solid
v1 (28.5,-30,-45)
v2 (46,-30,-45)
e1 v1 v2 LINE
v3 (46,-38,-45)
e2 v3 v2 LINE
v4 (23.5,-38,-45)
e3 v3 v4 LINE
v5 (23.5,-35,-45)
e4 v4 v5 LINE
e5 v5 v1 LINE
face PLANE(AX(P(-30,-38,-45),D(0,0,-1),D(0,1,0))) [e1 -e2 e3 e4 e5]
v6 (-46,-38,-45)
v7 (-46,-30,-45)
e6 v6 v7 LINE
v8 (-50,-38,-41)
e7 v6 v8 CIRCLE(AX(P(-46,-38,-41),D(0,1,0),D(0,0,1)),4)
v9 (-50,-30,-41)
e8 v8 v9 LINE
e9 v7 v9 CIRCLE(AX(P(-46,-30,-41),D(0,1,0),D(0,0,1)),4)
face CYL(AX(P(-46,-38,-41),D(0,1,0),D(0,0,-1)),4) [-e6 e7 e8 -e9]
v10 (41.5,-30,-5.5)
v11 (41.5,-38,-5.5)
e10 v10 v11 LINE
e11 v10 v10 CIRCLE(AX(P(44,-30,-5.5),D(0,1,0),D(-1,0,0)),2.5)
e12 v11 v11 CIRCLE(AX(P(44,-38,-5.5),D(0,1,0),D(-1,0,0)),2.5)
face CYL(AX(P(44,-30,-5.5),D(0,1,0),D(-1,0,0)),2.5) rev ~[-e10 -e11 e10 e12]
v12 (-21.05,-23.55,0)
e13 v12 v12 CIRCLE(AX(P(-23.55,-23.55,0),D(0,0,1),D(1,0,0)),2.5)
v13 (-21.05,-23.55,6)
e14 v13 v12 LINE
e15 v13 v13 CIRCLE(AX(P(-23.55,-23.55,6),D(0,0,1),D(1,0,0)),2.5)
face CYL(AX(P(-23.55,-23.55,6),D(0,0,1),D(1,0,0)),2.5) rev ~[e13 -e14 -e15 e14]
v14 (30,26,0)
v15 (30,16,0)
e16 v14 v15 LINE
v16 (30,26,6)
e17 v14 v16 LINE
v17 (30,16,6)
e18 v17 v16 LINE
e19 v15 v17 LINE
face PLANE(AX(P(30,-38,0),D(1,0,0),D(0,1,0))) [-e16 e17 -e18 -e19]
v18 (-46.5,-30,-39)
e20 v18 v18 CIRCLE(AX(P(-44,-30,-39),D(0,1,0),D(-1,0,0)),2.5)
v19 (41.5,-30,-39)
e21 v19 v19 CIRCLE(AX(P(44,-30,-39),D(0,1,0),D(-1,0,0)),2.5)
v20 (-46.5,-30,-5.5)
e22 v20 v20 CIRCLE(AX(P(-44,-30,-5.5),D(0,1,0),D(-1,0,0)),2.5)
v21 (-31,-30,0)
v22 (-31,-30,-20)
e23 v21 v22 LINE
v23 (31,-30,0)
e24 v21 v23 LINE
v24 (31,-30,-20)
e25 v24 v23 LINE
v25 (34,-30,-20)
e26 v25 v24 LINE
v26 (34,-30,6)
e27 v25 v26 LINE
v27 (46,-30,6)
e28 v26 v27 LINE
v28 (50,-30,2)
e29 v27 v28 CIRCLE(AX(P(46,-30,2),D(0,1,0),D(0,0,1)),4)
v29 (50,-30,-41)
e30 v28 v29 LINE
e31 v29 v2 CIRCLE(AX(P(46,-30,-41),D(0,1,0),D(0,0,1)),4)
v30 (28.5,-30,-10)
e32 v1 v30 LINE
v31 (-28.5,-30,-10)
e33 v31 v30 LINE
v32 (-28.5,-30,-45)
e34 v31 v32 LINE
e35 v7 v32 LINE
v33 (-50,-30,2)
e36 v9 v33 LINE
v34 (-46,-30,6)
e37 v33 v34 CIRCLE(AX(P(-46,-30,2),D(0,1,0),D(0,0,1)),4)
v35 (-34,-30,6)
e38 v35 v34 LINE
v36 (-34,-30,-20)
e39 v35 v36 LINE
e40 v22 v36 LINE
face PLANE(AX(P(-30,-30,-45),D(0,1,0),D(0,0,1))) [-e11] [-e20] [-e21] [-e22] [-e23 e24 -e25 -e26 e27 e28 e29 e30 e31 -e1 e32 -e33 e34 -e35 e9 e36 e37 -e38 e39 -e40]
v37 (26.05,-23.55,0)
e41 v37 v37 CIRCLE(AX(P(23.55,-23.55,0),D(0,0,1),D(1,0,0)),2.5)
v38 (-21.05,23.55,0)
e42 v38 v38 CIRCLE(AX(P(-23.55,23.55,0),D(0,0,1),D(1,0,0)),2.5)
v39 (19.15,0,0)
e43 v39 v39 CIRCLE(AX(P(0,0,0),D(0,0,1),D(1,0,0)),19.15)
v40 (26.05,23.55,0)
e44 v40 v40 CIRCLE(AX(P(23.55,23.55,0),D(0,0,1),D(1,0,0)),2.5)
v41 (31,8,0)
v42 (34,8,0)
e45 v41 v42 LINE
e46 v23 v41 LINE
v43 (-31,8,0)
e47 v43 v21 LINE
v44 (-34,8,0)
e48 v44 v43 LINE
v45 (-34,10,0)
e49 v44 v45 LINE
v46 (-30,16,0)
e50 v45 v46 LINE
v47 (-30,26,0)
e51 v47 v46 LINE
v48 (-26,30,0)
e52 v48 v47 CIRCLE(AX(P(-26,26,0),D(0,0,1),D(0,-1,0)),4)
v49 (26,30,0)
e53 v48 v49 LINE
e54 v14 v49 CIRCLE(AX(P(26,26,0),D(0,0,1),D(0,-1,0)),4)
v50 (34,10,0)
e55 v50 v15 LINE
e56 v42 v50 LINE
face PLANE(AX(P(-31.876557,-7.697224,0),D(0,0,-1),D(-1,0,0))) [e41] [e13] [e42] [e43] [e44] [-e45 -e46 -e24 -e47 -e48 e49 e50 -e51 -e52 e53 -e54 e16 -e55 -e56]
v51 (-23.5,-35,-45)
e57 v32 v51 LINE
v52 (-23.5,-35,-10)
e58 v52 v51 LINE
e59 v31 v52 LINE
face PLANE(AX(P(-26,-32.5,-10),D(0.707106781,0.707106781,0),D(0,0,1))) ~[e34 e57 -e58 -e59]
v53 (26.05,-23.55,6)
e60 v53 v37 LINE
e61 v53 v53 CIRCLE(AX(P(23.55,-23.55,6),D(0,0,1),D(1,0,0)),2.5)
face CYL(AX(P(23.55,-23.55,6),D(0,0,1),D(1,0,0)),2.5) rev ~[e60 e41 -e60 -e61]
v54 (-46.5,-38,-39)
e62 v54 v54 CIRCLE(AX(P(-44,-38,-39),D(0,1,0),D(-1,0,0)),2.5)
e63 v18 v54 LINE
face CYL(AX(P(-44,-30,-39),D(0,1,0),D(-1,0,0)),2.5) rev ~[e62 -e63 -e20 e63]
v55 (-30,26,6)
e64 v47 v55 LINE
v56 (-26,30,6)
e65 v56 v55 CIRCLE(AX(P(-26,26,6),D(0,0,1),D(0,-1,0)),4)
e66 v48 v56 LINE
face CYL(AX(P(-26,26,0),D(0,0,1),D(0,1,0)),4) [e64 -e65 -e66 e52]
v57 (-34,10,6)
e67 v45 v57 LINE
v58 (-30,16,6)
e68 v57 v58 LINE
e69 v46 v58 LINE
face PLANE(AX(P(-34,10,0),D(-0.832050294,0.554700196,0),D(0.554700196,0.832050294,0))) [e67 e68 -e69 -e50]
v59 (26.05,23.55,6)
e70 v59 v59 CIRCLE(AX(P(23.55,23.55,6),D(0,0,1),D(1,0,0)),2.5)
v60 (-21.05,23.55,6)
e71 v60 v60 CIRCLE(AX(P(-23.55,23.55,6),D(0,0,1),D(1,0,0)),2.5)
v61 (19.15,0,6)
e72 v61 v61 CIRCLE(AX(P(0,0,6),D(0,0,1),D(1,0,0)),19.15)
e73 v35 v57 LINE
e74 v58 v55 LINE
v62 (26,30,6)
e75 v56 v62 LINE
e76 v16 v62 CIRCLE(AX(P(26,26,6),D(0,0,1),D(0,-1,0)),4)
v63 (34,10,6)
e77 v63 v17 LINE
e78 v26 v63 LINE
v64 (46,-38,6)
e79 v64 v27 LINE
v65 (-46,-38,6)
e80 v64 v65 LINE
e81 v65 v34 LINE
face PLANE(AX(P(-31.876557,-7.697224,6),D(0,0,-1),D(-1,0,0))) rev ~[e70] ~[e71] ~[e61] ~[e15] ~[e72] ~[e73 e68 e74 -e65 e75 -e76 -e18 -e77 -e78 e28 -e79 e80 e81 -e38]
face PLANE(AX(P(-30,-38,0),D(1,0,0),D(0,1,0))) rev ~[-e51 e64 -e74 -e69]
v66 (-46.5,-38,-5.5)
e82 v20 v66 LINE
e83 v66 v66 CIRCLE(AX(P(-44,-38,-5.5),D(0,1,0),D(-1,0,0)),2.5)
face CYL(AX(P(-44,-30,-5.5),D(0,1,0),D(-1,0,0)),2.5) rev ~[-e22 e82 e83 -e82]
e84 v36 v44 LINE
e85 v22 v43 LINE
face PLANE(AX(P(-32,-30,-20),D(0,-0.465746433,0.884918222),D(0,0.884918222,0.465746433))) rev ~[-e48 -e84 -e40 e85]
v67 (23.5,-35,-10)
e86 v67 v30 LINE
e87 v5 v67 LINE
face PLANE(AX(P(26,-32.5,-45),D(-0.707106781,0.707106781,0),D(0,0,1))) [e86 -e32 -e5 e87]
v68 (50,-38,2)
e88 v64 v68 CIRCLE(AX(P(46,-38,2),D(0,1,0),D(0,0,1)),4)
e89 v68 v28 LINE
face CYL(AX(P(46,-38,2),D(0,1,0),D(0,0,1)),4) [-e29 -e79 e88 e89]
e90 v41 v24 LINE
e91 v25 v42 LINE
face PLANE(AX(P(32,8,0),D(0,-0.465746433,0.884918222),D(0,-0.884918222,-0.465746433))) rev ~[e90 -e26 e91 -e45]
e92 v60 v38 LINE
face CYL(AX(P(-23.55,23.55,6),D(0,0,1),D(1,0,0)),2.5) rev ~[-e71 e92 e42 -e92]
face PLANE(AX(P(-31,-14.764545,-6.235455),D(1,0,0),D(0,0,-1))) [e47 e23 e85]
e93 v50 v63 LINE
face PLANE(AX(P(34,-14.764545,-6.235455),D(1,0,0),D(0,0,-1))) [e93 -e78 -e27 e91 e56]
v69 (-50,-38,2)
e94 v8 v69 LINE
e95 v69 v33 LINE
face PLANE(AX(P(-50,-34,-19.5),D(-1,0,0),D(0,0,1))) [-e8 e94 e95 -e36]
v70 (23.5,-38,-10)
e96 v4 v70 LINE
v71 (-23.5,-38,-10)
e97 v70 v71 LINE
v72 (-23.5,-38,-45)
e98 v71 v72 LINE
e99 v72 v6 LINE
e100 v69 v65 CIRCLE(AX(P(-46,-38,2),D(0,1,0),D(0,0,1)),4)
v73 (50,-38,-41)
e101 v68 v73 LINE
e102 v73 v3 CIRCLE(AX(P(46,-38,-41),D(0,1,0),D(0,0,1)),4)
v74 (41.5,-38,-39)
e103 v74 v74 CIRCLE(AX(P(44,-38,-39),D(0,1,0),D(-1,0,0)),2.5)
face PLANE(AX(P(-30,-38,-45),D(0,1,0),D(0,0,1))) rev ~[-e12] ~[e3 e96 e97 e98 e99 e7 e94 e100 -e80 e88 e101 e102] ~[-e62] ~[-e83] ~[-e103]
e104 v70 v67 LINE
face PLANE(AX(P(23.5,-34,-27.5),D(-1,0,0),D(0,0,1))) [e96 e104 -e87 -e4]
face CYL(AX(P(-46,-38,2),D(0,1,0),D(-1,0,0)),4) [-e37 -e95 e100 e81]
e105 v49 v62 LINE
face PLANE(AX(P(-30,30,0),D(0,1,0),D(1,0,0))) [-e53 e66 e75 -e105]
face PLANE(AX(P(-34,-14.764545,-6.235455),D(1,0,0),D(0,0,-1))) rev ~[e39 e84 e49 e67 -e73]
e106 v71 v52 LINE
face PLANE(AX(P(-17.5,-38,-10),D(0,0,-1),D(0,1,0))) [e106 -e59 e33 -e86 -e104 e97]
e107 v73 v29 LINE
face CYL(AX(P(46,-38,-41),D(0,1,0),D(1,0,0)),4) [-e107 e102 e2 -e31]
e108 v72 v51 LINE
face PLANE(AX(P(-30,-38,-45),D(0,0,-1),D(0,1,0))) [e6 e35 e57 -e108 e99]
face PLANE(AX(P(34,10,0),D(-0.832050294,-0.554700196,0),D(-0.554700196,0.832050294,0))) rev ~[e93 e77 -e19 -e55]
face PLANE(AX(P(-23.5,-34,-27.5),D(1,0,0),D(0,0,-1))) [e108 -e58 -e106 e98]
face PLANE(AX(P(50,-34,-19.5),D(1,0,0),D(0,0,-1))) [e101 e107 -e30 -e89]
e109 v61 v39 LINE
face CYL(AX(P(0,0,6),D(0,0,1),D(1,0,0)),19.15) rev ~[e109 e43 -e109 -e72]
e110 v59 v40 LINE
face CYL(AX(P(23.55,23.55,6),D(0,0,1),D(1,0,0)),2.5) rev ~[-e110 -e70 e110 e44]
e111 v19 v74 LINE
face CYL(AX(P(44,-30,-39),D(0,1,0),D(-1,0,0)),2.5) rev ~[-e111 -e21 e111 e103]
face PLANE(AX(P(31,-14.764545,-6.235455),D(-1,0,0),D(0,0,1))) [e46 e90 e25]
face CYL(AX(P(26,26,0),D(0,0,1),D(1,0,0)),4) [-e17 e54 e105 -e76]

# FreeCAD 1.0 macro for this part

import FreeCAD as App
import Part
import Sketcher
from FreeCAD import Vector
Q = App.Units.Quantity


def edges_at(feature, points):
    """Names of the edges that pass closest to the given points."""
    edges = feature.Shape.Edges
    near = lambda p: min(range(len(edges)), key=lambda i: edges[i].distToShape(Part.Vertex(*p))[0])
    return sorted({f"Edge{near(p) + 1}" for p in points})

doc = App.newDocument("Part")
params = doc.addObject("Spreadsheet::Sheet", "Params")
for row, (alias, value) in enumerate([
    ("sketch1_width", "60 mm"),
    ("pad1_length", "6 mm"),
    ("sketch2_diameter", "38.3 mm"),
    ("pocket1_length", "6 mm"),
    ("sketch3_diameter", "5 mm"),
    ("pocket2_length", "6 mm"),
    ("sketch4_width", "60 mm"),
    ("sketch4_height", "6 mm"),
    ("pad2_length", "8 mm"),
    ("sketch5_width", "60 mm"),
    ("sketch5_height", "8 mm"),
    ("pad3_length", "45 mm"),
    ("sketch6_width", "8 mm"),
    ("sketch6_height", "51 mm"),
    ("pad4_length", "20 mm"),
    ("sketch7_width", "8 mm"),
    ("sketch7_height", "51 mm"),
    ("pad5_length", "20 mm"),
    ("sketch8_width", "4 mm"),
    ("sketch8_height", "46 mm"),
    ("sketch8_height2", "40 mm"),
    ("pad6_length", "6 mm"),
    ("sketch9_width", "4 mm"),
    ("sketch9_height", "40 mm"),
    ("sketch9_height2", "46 mm"),
    ("pad7_length", "6 mm"),
    ("sketch10_width", "38 mm"),
    ("sketch10_height", "20 mm"),
    ("pad8_length", "2 mm"),
    ("sketch11_width", "38 mm"),
    ("sketch11_height", "20 mm"),
    ("pad9_length", "2 mm"),
    ("sketch12_width", "38 mm"),
    ("sketch12_height", "20 mm"),
    ("pad10_length", "1 mm"),
    ("sketch13_width", "38 mm"),
    ("sketch13_height", "20 mm"),
    ("pad11_length", "1 mm"),
    ("sketch14_width", "35 mm"),
    ("pocket3_length", "10 mm"),
    ("sketch15_diameter", "5 mm"),
    ("pocket4_length", "10 mm"),
    ("sketch16_width", "8 mm"),
    ("sketch16_height", "35 mm"),
    ("pocket5_length", "6 mm"),
    ("sketch17_width", "8 mm"),
    ("sketch17_height", "35 mm"),
    ("pocket6_length", "6 mm"),
    ("chamfer_size", "5 mm"),
    ("chamfer2_size", "5 mm"),
    ("fillet_radius", "4 mm"),
    ("fillet2_radius", "4 mm"),
    ("fillet3_radius", "4 mm"),
    ("fillet4_radius", "4 mm"),
    ("fillet5_radius", "4 mm"),
    ("fillet6_radius", "4 mm"),
], start=1):
    params.set(f"A{row}", alias)
    params.set(f"B{row}", "=" + value)
    params.setAlias(f"B{row}", alias)

body = doc.addObject("PartDesign::Body", "Body")

# Sketch on XY plane
sketch1 = doc.addObject("Sketcher::SketchObject", "Sketch")
body.addObject(sketch1)
sketch1.AttachmentSupport = (doc.XY_Plane, [""])
sketch1.MapMode = "FlatFace"
sketch1.addGeometry([
    Part.LineSegment(Vector(-30, 30, 0), Vector(-30, -30, 0)),
    Part.LineSegment(Vector(-30, -30, 0), Vector(30, -30, 0)),
    Part.LineSegment(Vector(30, -30, 0), Vector(30, 30, 0)),
    Part.LineSegment(Vector(30, 30, 0), Vector(-30, 30, 0)),
], False)
sketch1.addConstraint([
    Sketcher.Constraint("Coincident", 0, 2, 1, 1),
    Sketcher.Constraint("Coincident", 1, 2, 2, 1),
    Sketcher.Constraint("Coincident", 2, 2, 3, 1),
    Sketcher.Constraint("Coincident", 3, 2, 0, 1),
    Sketcher.Constraint("Vertical", 0),
    Sketcher.Constraint("Horizontal", 1),
    Sketcher.Constraint("Vertical", 2),
    Sketcher.Constraint("Horizontal", 3),
    Sketcher.Constraint("Symmetric", 0, 2, 2, 2, -1, 1),
    Sketcher.Constraint("Equal", 3, 0),
    Sketcher.Constraint("DistanceX", 1, 1, 1, 2, Q("60 mm")),
])
sketch1.setExpression("Constraints[10]", "Params.sketch1_width")
pad1 = doc.addObject("PartDesign::Pad", "Pad")
body.addObject(pad1)
pad1.Profile = sketch1
pad1.setExpression("Length", "Params.pad1_length")

# Sketch on XY plane
sketch2 = doc.addObject("Sketcher::SketchObject", "Sketch001")
body.addObject(sketch2)
sketch2.AttachmentSupport = (doc.XY_Plane, [""])
sketch2.MapMode = "FlatFace"
sketch2.AttachmentOffset = App.Placement(Vector(0, 0, 6), App.Rotation())
sketch2.addGeometry(Part.Circle(Vector(0, 0, 0), Vector(0, 0, 1), 19), False)
sketch2.addConstraint([
    Sketcher.Constraint("Coincident", 0, 3, -1, 1),
    Sketcher.Constraint("Diameter", 0, Q("38.3 mm")),
])
sketch2.setExpression("Constraints[1]", "Params.sketch2_diameter")
pocket1 = doc.addObject("PartDesign::Pocket", "Pocket")
body.addObject(pocket1)
pocket1.Profile = sketch2
pocket1.setExpression("Length", "Params.pocket1_length")

# Sketch on XY plane
sketch3 = doc.addObject("Sketcher::SketchObject", "Sketch002")
body.addObject(sketch3)
sketch3.AttachmentSupport = (doc.XY_Plane, [""])
sketch3.MapMode = "FlatFace"
sketch3.AttachmentOffset = App.Placement(Vector(0, 0, 6), App.Rotation())
sketch3.addGeometry([
    Part.Circle(Vector(-23.6, 23.6, 0), Vector(0, 0, 1), 2.5),
    Part.Circle(Vector(-23.6, -23.6, 0), Vector(0, 0, 1), 2.5),
    Part.Circle(Vector(23.6, 23.6, 0), Vector(0, 0, 1), 2.5),
    Part.Circle(Vector(23.6, -23.6, 0), Vector(0, 0, 1), 2.5),
], False)
sketch3.addConstraint([
    Sketcher.Constraint("Equal", 0, 1),
    Sketcher.Constraint("Equal", 1, 2),
    Sketcher.Constraint("Equal", 2, 3),
    Sketcher.Constraint("Symmetric", 1, 3, 2, 3, -1, 1),
    Sketcher.Constraint("Symmetric", 0, 3, 3, 3, -1, 1),
    Sketcher.Constraint("Symmetric", 0, 3, 2, 3, -2),
    Sketcher.Constraint("Diameter", 0, Q("5 mm")),
    Sketcher.Constraint("DistanceY", 1, 3, 0, 3, Q("47.1 mm")),
    Sketcher.Constraint("DistanceX", 0, 3, 2, 3, Q("47.1 mm")),
])
sketch3.setExpression("Constraints[6]", "Params.sketch3_diameter")
pocket2 = doc.addObject("PartDesign::Pocket", "Pocket001")
body.addObject(pocket2)
pocket2.Profile = sketch3
pocket2.setExpression("Length", "Params.pocket2_length")

# Sketch on XZ plane
sketch4 = doc.addObject("Sketcher::SketchObject", "Sketch003")
body.addObject(sketch4)
sketch4.AttachmentSupport = (doc.XZ_Plane, [""])
sketch4.MapMode = "FlatFace"
sketch4.AttachmentOffset = App.Placement(Vector(0, 0, 30), App.Rotation())
sketch4.addGeometry([
    Part.LineSegment(Vector(-30, 6, 0), Vector(-30, 0, 0)),
    Part.LineSegment(Vector(-30, 0, 0), Vector(30, 0, 0)),
    Part.LineSegment(Vector(30, 0, 0), Vector(30, 6, 0)),
    Part.LineSegment(Vector(30, 6, 0), Vector(-30, 6, 0)),
], False)
sketch4.addConstraint([
    Sketcher.Constraint("Coincident", 0, 2, 1, 1),
    Sketcher.Constraint("Coincident", 1, 2, 2, 1),
    Sketcher.Constraint("Coincident", 2, 2, 3, 1),
    Sketcher.Constraint("Coincident", 3, 2, 0, 1),
    Sketcher.Constraint("Vertical", 0),
    Sketcher.Constraint("Horizontal", 1),
    Sketcher.Constraint("Vertical", 2),
    Sketcher.Constraint("Horizontal", 3),
    Sketcher.Constraint("Symmetric", 0, 2, 1, 2, -1, 1),
    Sketcher.Constraint("DistanceX", 1, 1, 1, 2, Q("60 mm")),
    Sketcher.Constraint("DistanceY", 0, 2, 0, 1, Q("6 mm")),
])
sketch4.setExpression("Constraints[9]", "Params.sketch4_width")
sketch4.setExpression("Constraints[10]", "Params.sketch4_height")
pad2 = doc.addObject("PartDesign::Pad", "Pad001")
body.addObject(pad2)
pad2.Profile = sketch4
pad2.setExpression("Length", "Params.pad2_length")

# Sketch on XY plane
sketch5 = doc.addObject("Sketcher::SketchObject", "Sketch004")
body.addObject(sketch5)
sketch5.AttachmentSupport = (doc.XY_Plane, [""])
sketch5.MapMode = "FlatFace"
sketch5.addGeometry([
    Part.LineSegment(Vector(30, -30, 0), Vector(30, -38, 0)),
    Part.LineSegment(Vector(30, -38, 0), Vector(-30, -38, 0)),
    Part.LineSegment(Vector(-30, -38, 0), Vector(-30, -30, 0)),
    Part.LineSegment(Vector(-30, -30, 0), Vector(30, -30, 0)),
], False)
sketch5.addConstraint([
    Sketcher.Constraint("Coincident", 0, 2, 1, 1),
    Sketcher.Constraint("Coincident", 1, 2, 2, 1),
    Sketcher.Constraint("Coincident", 2, 2, 3, 1),
    Sketcher.Constraint("Coincident", 3, 2, 0, 1),
    Sketcher.Constraint("Vertical", 0),
    Sketcher.Constraint("Horizontal", 1),
    Sketcher.Constraint("Vertical", 2),
    Sketcher.Constraint("Horizontal", 3),
    Sketcher.Constraint("DistanceX", 1, 2, 1, 1, Q("60 mm")),
    Sketcher.Constraint("DistanceY", 0, 2, 0, 1, Q("8 mm")),
    Sketcher.Constraint("DistanceX", -1, 1, 0, 2, Q("30 mm")),
    Sketcher.Constraint("DistanceY", 0, 2, -1, 1, Q("38 mm")),
])
sketch5.setExpression("Constraints[8]", "Params.sketch5_width")
sketch5.setExpression("Constraints[9]", "Params.sketch5_height")
pad3 = doc.addObject("PartDesign::Pad", "Pad002")
body.addObject(pad3)
pad3.Profile = sketch5
pad3.setExpression("Length", "Params.pad3_length")
pad3.Reversed = True

# Sketch on YZ plane
sketch6 = doc.addObject("Sketcher::SketchObject", "Sketch005")
body.addObject(sketch6)
sketch6.AttachmentSupport = (doc.YZ_Plane, [""])
sketch6.MapMode = "FlatFace"
sketch6.AttachmentOffset = App.Placement(Vector(0, 0, 30), App.Rotation())
sketch6.addGeometry([
    Part.LineSegment(Vector(-30, 6, 0), Vector(-38, 6, 0)),
    Part.LineSegment(Vector(-38, 6, 0), Vector(-38, -45, 0)),
    Part.LineSegment(Vector(-38, -45, 0), Vector(-30, -45, 0)),
    Part.LineSegment(Vector(-30, -45, 0), Vector(-30, 6, 0)),
], False)
sketch6.addConstraint([
    Sketcher.Constraint("Coincident", 0, 2, 1, 1),
    Sketcher.Constraint("Coincident", 1, 2, 2, 1),
    Sketcher.Constraint("Coincident", 2, 2, 3, 1),
    Sketcher.Constraint("Coincident", 3, 2, 0, 1),
    Sketcher.Constraint("Horizontal", 0),
    Sketcher.Constraint("Vertical", 1),
    Sketcher.Constraint("Horizontal", 2),
    Sketcher.Constraint("Vertical", 3),
    Sketcher.Constraint("DistanceX", 0, 2, 0, 1, Q("8 mm")),
    Sketcher.Constraint("DistanceY", 1, 2, 1, 1, Q("51 mm")),
    Sketcher.Constraint("DistanceX", 0, 2, -1, 1, Q("38 mm")),
    Sketcher.Constraint("DistanceY", -1, 1, 0, 2, Q("6 mm")),
])
sketch6.setExpression("Constraints[8]", "Params.sketch6_width")
sketch6.setExpression("Constraints[9]", "Params.sketch6_height")
pad4 = doc.addObject("PartDesign::Pad", "Pad003")
body.addObject(pad4)
pad4.Profile = sketch6
pad4.setExpression("Length", "Params.pad4_length")

# Sketch on YZ plane
sketch7 = doc.addObject("Sketcher::SketchObject", "Sketch006")
body.addObject(sketch7)
sketch7.AttachmentSupport = (doc.YZ_Plane, [""])
sketch7.MapMode = "FlatFace"
sketch7.AttachmentOffset = App.Placement(Vector(0, 0, -30), App.Rotation())
sketch7.addGeometry([
    Part.LineSegment(Vector(-30, -45, 0), Vector(-38, -45, 0)),
    Part.LineSegment(Vector(-38, -45, 0), Vector(-38, 6, 0)),
    Part.LineSegment(Vector(-38, 6, 0), Vector(-30, 6, 0)),
    Part.LineSegment(Vector(-30, 6, 0), Vector(-30, -45, 0)),
], False)
sketch7.addConstraint([
    Sketcher.Constraint("Coincident", 0, 2, 1, 1),
    Sketcher.Constraint("Coincident", 1, 2, 2, 1),
    Sketcher.Constraint("Coincident", 2, 2, 3, 1),
    Sketcher.Constraint("Coincident", 3, 2, 0, 1),
    Sketcher.Constraint("Horizontal", 0),
    Sketcher.Constraint("Vertical", 1),
    Sketcher.Constraint("Horizontal", 2),
    Sketcher.Constraint("Vertical", 3),
    Sketcher.Constraint("DistanceX", 0, 2, 0, 1, Q("8 mm")),
    Sketcher.Constraint("DistanceY", 1, 1, 1, 2, Q("51 mm")),
    Sketcher.Constraint("DistanceX", 0, 2, -1, 1, Q("38 mm")),
    Sketcher.Constraint("DistanceY", 0, 2, -1, 1, Q("45 mm")),
])
sketch7.setExpression("Constraints[8]", "Params.sketch7_width")
sketch7.setExpression("Constraints[9]", "Params.sketch7_height")
pad5 = doc.addObject("PartDesign::Pad", "Pad004")
body.addObject(pad5)
pad5.Profile = sketch7
pad5.setExpression("Length", "Params.pad5_length")
pad5.Reversed = True

# Sketch on XY plane
sketch8 = doc.addObject("Sketcher::SketchObject", "Sketch007")
body.addObject(sketch8)
sketch8.AttachmentSupport = (doc.XY_Plane, [""])
sketch8.MapMode = "FlatFace"
sketch8.addGeometry([
    Part.LineSegment(Vector(34, -30, 0), Vector(30, -30, 0)),
    Part.LineSegment(Vector(30, -30, 0), Vector(30, 16, 0)),
    Part.LineSegment(Vector(30, 16, 0), Vector(34, 10, 0)),
    Part.LineSegment(Vector(34, 10, 0), Vector(34, -30, 0)),
], False)
sketch8.addConstraint([
    Sketcher.Constraint("Coincident", 0, 2, 1, 1),
    Sketcher.Constraint("Coincident", 1, 2, 2, 1),
    Sketcher.Constraint("Coincident", 2, 2, 3, 1),
    Sketcher.Constraint("Coincident", 3, 2, 0, 1),
    Sketcher.Constraint("Horizontal", 0),
    Sketcher.Constraint("Vertical", 1),
    Sketcher.Constraint("Vertical", 3),
    Sketcher.Constraint("DistanceX", 0, 2, 0, 1, Q("4 mm")),
    Sketcher.Constraint("DistanceY", 1, 1, 1, 2, Q("46 mm")),
    Sketcher.Constraint("DistanceY", 3, 2, 3, 1, Q("40 mm")),
    Sketcher.Constraint("DistanceX", -1, 1, 0, 2, Q("30 mm")),
    Sketcher.Constraint("DistanceY", 0, 2, -1, 1, Q("30 mm")),
])
sketch8.setExpression("Constraints[7]", "Params.sketch8_width")
sketch8.setExpression("Constraints[8]", "Params.sketch8_height")
sketch8.setExpression("Constraints[9]", "Params.sketch8_height2")
pad6 = doc.addObject("PartDesign::Pad", "Pad005")
body.addObject(pad6)
pad6.Profile = sketch8
pad6.setExpression("Length", "Params.pad6_length")

# Sketch on XY plane
sketch9 = doc.addObject("Sketcher::SketchObject", "Sketch008")
body.addObject(sketch9)
sketch9.AttachmentSupport = (doc.XY_Plane, [""])
sketch9.MapMode = "FlatFace"
sketch9.addGeometry([
    Part.LineSegment(Vector(-30, -30, 0), Vector(-34, -30, 0)),
    Part.LineSegment(Vector(-34, -30, 0), Vector(-34, 10, 0)),
    Part.LineSegment(Vector(-34, 10, 0), Vector(-30, 16, 0)),
    Part.LineSegment(Vector(-30, 16, 0), Vector(-30, -30, 0)),
], False)
sketch9.addConstraint([
    Sketcher.Constraint("Coincident", 0, 2, 1, 1),
    Sketcher.Constraint("Coincident", 1, 2, 2, 1),
    Sketcher.Constraint("Coincident", 2, 2, 3, 1),
    Sketcher.Constraint("Coincident", 3, 2, 0, 1),
    Sketcher.Constraint("Horizontal", 0),
    Sketcher.Constraint("Vertical", 1),
    Sketcher.Constraint("Vertical", 3),
    Sketcher.Constraint("DistanceX", 0, 2, 0, 1, Q("4 mm")),
    Sketcher.Constraint("DistanceY", 1, 1, 1, 2, Q("40 mm")),
    Sketcher.Constraint("DistanceY", 3, 2, 3, 1, Q("46 mm")),
    Sketcher.Constraint("DistanceX", 0, 2, -1, 1, Q("34 mm")),
    Sketcher.Constraint("DistanceY", 0, 2, -1, 1, Q("30 mm")),
])
sketch9.setExpression("Constraints[7]", "Params.sketch9_width")
sketch9.setExpression("Constraints[8]", "Params.sketch9_height")
sketch9.setExpression("Constraints[9]", "Params.sketch9_height2")
pad7 = doc.addObject("PartDesign::Pad", "Pad006")
body.addObject(pad7)
pad7.Profile = sketch9
pad7.setExpression("Length", "Params.pad7_length")

# Sketch on YZ plane
sketch10 = doc.addObject("Sketcher::SketchObject", "Sketch009")
body.addObject(sketch10)
sketch10.AttachmentSupport = (doc.YZ_Plane, [""])
sketch10.MapMode = "FlatFace"
sketch10.AttachmentOffset = App.Placement(Vector(0, 0, 34), App.Rotation())
sketch10.addGeometry([
    Part.LineSegment(Vector(-30, 0, 0), Vector(-30, -20, 0)),
    Part.LineSegment(Vector(-30, -20, 0), Vector(8, 0, 0)),
    Part.LineSegment(Vector(8, 0, 0), Vector(-30, 0, 0)),
], False)
sketch10.addConstraint([
    Sketcher.Constraint("Coincident", 0, 2, 1, 1),
    Sketcher.Constraint("Coincident", 1, 2, 2, 1),
    Sketcher.Constraint("Coincident", 2, 2, 0, 1),
    Sketcher.Constraint("Vertical", 0),
    Sketcher.Constraint("Horizontal", 2),
    Sketcher.Constraint("PointOnObject", 1, 2, -1),
    Sketcher.Constraint("DistanceX", 2, 2, 2, 1, Q("38 mm")),
    Sketcher.Constraint("DistanceY", 0, 2, 0, 1, Q("20 mm")),
    Sketcher.Constraint("DistanceX", 0, 2, -1, 1, Q("30 mm")),
])
sketch10.setExpression("Constraints[6]", "Params.sketch10_width")
sketch10.setExpression("Constraints[7]", "Params.sketch10_height")
pad8 = doc.addObject("PartDesign::Pad", "Pad007")
body.addObject(pad8)
pad8.Profile = sketch10
pad8.setExpression("Length", "Params.pad8_length")
pad8.Reversed = True

# Sketch on YZ plane
sketch11 = doc.addObject("Sketcher::SketchObject", "Sketch010")
body.addObject(sketch11)
sketch11.AttachmentSupport = (doc.YZ_Plane, [""])
sketch11.MapMode = "FlatFace"
sketch11.AttachmentOffset = App.Placement(Vector(0, 0, -34), App.Rotation())
sketch11.addGeometry([
    Part.LineSegment(Vector(-30, -20, 0), Vector(-30, 0, 0)),
    Part.LineSegment(Vector(-30, 0, 0), Vector(8, 0, 0)),
    Part.LineSegment(Vector(8, 0, 0), Vector(-30, -20, 0)),
], False)
sketch11.addConstraint([
    Sketcher.Constraint("Coincident", 0, 2, 1, 1),
    Sketcher.Constraint("Coincident", 1, 2, 2, 1),
    Sketcher.Constraint("Coincident", 2, 2, 0, 1),
    Sketcher.Constraint("Vertical", 0),
    Sketcher.Constraint("Horizontal", 1),
    Sketcher.Constraint("PointOnObject", 0, 2, -1),
    Sketcher.Constraint("DistanceX", 1, 1, 1, 2, Q("38 mm")),
    Sketcher.Constraint("DistanceY", 0, 1, 0, 2, Q("20 mm")),
    Sketcher.Constraint("DistanceX", 0, 2, -1, 1, Q("30 mm")),
])
sketch11.setExpression("Constraints[6]", "Params.sketch11_width")
sketch11.setExpression("Constraints[7]", "Params.sketch11_height")
pad9 = doc.addObject("PartDesign::Pad", "Pad008")
body.addObject(pad9)
pad9.Profile = sketch11
pad9.setExpression("Length", "Params.pad9_length")

# Sketch on YZ plane
sketch12 = doc.addObject("Sketcher::SketchObject", "Sketch011")
body.addObject(sketch12)
sketch12.AttachmentSupport = (doc.YZ_Plane, [""])
sketch12.MapMode = "FlatFace"
sketch12.AttachmentOffset = App.Placement(Vector(0, 0, 32), App.Rotation())
sketch12.addGeometry([
    Part.LineSegment(Vector(-30, -20, 0), Vector(-30, 0, 0)),
    Part.LineSegment(Vector(-30, 0, 0), Vector(8, 0, 0)),
    Part.LineSegment(Vector(8, 0, 0), Vector(-30, -20, 0)),
], False)
sketch12.addConstraint([
    Sketcher.Constraint("Coincident", 0, 2, 1, 1),
    Sketcher.Constraint("Coincident", 1, 2, 2, 1),
    Sketcher.Constraint("Coincident", 2, 2, 0, 1),
    Sketcher.Constraint("Vertical", 0),
    Sketcher.Constraint("Horizontal", 1),
    Sketcher.Constraint("PointOnObject", 0, 2, -1),
    Sketcher.Constraint("DistanceX", 1, 1, 1, 2, Q("38 mm")),
    Sketcher.Constraint("DistanceY", 0, 1, 0, 2, Q("20 mm")),
    Sketcher.Constraint("DistanceX", 0, 2, -1, 1, Q("30 mm")),
])
sketch12.setExpression("Constraints[6]", "Params.sketch12_width")
sketch12.setExpression("Constraints[7]", "Params.sketch12_height")
pad10 = doc.addObject("PartDesign::Pad", "Pad009")
body.addObject(pad10)
pad10.Profile = sketch12
pad10.setExpression("Length", "Params.pad10_length")
pad10.Reversed = True

# Sketch on YZ plane
sketch13 = doc.addObject("Sketcher::SketchObject", "Sketch012")
body.addObject(sketch13)
sketch13.AttachmentSupport = (doc.YZ_Plane, [""])
sketch13.MapMode = "FlatFace"
sketch13.AttachmentOffset = App.Placement(Vector(0, 0, -32), App.Rotation())
sketch13.addGeometry([
    Part.LineSegment(Vector(8, 0, 0), Vector(-30, 0, 0)),
    Part.LineSegment(Vector(-30, 0, 0), Vector(-30, -20, 0)),
    Part.LineSegment(Vector(-30, -20, 0), Vector(8, 0, 0)),
], False)
sketch13.addConstraint([
    Sketcher.Constraint("Coincident", 0, 2, 1, 1),
    Sketcher.Constraint("Coincident", 1, 2, 2, 1),
    Sketcher.Constraint("Coincident", 2, 2, 0, 1),
    Sketcher.Constraint("Horizontal", 0),
    Sketcher.Constraint("Vertical", 1),
    Sketcher.Constraint("PointOnObject", 0, 2, -1),
    Sketcher.Constraint("DistanceX", 0, 2, 0, 1, Q("38 mm")),
    Sketcher.Constraint("DistanceY", 1, 2, 1, 1, Q("20 mm")),
    Sketcher.Constraint("DistanceX", 0, 2, -1, 1, Q("30 mm")),
])
sketch13.setExpression("Constraints[6]", "Params.sketch13_width")
sketch13.setExpression("Constraints[7]", "Params.sketch13_height")
pad11 = doc.addObject("PartDesign::Pad", "Pad010")
body.addObject(pad11)
pad11.Profile = sketch13
pad11.setExpression("Length", "Params.pad11_length")

# Sketch on XZ plane
sketch14 = doc.addObject("Sketcher::SketchObject", "Sketch013")
body.addObject(sketch14)
sketch14.AttachmentSupport = (doc.XZ_Plane, [""])
sketch14.MapMode = "FlatFace"
sketch14.AttachmentOffset = App.Placement(Vector(0, 0, 30), App.Rotation())
sketch14.addGeometry([
    Part.LineSegment(Vector(-18, -70, 0), Vector(-18, -10, 0)),
    Part.LineSegment(Vector(-18, -10, 0), Vector(18, -10, 0)),
    Part.LineSegment(Vector(18, -10, 0), Vector(18, -70, 0)),
    Part.LineSegment(Vector(18, -70, 0), Vector(-18, -70, 0)),
], False)
sketch14.addConstraint([
    Sketcher.Constraint("Coincident", 0, 2, 1, 1),
    Sketcher.Constraint("Coincident", 1, 2, 2, 1),
    Sketcher.Constraint("Coincident", 2, 2, 3, 1),
    Sketcher.Constraint("Coincident", 3, 2, 0, 1),
    Sketcher.Constraint("Vertical", 0),
    Sketcher.Constraint("Horizontal", 1),
    Sketcher.Constraint("Vertical", 2),
    Sketcher.Constraint("Horizontal", 3),
    Sketcher.Constraint("DistanceX", 1, 1, 1, 2, Q("35 mm")),
    Sketcher.Constraint("DistanceY", 0, 2, -1, 1, Q("10 mm")),
    Sketcher.Constraint("DistanceX", 0, 2, -1, 1, Q("17.5 mm")),
    Sketcher.Constraint("DistanceY", 0, 1, 0, 2, Q("59.551197 mm")),
])
sketch14.setExpression("Constraints[8]", "Params.sketch14_width")
pocket3 = doc.addObject("PartDesign::Pocket", "Pocket002")
body.addObject(pocket3)
pocket3.Profile = sketch14
pocket3.setExpression("Length", "Params.pocket3_length")
pocket3.Reversed = True

# Sketch on XZ plane
sketch15 = doc.addObject("Sketcher::SketchObject", "Sketch014")
body.addObject(sketch15)
sketch15.AttachmentSupport = (doc.XZ_Plane, [""])
sketch15.MapMode = "FlatFace"
sketch15.AttachmentOffset = App.Placement(Vector(0, 0, 30), App.Rotation())
sketch15.addGeometry([
    Part.Circle(Vector(-44, -39, 0), Vector(0, 0, 1), 2.5),
    Part.Circle(Vector(-44, -5.5, 0), Vector(0, 0, 1), 2.5),
    Part.Circle(Vector(44, -5.5, 0), Vector(0, 0, 1), 2.5),
    Part.Circle(Vector(44, -39, 0), Vector(0, 0, 1), 2.5),
], False)
sketch15.addConstraint([
    Sketcher.Constraint("Equal", 0, 1),
    Sketcher.Constraint("Equal", 1, 2),
    Sketcher.Constraint("Equal", 2, 3),
    Sketcher.Constraint("Symmetric", 1, 3, 2, 3, -2),
    Sketcher.Constraint("Symmetric", 0, 3, 3, 3, -2),
    Sketcher.Constraint("Vertical", 0, 3, 1, 3),
    Sketcher.Constraint("Diameter", 0, Q("5 mm")),
    Sketcher.Constraint("DistanceX", 0, 3, -1, 1, Q("44 mm")),
    Sketcher.Constraint("DistanceY", 0, 3, -1, 1, Q("39 mm")),
    Sketcher.Constraint("DistanceY", 1, 3, -1, 1, Q("5.5 mm")),
])
sketch15.setExpression("Constraints[6]", "Params.sketch15_diameter")
pocket4 = doc.addObject("PartDesign::Pocket", "Pocket003")
body.addObject(pocket4)
pocket4.Profile = sketch15
pocket4.setExpression("Length", "Params.pocket4_length")
pocket4.Reversed = True

# Sketch on YZ plane
sketch16 = doc.addObject("Sketcher::SketchObject", "Sketch015")
body.addObject(sketch16)
sketch16.AttachmentSupport = (doc.YZ_Plane, [""])
sketch16.MapMode = "FlatFace"
sketch16.AttachmentOffset = App.Placement(Vector(0, 0, 17.5), App.Rotation())
sketch16.addGeometry([
    Part.LineSegment(Vector(-30, -45, 0), Vector(-38, -45, 0)),
    Part.LineSegment(Vector(-38, -45, 0), Vector(-38, -10, 0)),
    Part.LineSegment(Vector(-38, -10, 0), Vector(-30, -10, 0)),
    Part.LineSegment(Vector(-30, -10, 0), Vector(-30, -45, 0)),
], False)
sketch16.addConstraint([
    Sketcher.Constraint("Coincident", 0, 2, 1, 1),
    Sketcher.Constraint("Coincident", 1, 2, 2, 1),
    Sketcher.Constraint("Coincident", 2, 2, 3, 1),
    Sketcher.Constraint("Coincident", 3, 2, 0, 1),
    Sketcher.Constraint("Horizontal", 0),
    Sketcher.Constraint("Vertical", 1),
    Sketcher.Constraint("Horizontal", 2),
    Sketcher.Constraint("Vertical", 3),
    Sketcher.Constraint("DistanceX", 0, 2, 0, 1, Q("8 mm")),
    Sketcher.Constraint("DistanceY", 1, 1, 1, 2, Q("35 mm")),
    Sketcher.Constraint("DistanceX", 0, 2, -1, 1, Q("38 mm")),
    Sketcher.Constraint("DistanceY", 0, 2, -1, 1, Q("45 mm")),
])
sketch16.setExpression("Constraints[8]", "Params.sketch16_width")
sketch16.setExpression("Constraints[9]", "Params.sketch16_height")
pocket5 = doc.addObject("PartDesign::Pocket", "Pocket004")
body.addObject(pocket5)
pocket5.Profile = sketch16
pocket5.setExpression("Length", "Params.pocket5_length")
pocket5.Reversed = True

# Sketch on YZ plane
sketch17 = doc.addObject("Sketcher::SketchObject", "Sketch016")
body.addObject(sketch17)
sketch17.AttachmentSupport = (doc.YZ_Plane, [""])
sketch17.MapMode = "FlatFace"
sketch17.AttachmentOffset = App.Placement(Vector(0, 0, -17.5), App.Rotation())
sketch17.addGeometry([
    Part.LineSegment(Vector(-30, -10, 0), Vector(-38, -10, 0)),
    Part.LineSegment(Vector(-38, -10, 0), Vector(-38, -45, 0)),
    Part.LineSegment(Vector(-38, -45, 0), Vector(-30, -45, 0)),
    Part.LineSegment(Vector(-30, -45, 0), Vector(-30, -10, 0)),
], False)
sketch17.addConstraint([
    Sketcher.Constraint("Coincident", 0, 2, 1, 1),
    Sketcher.Constraint("Coincident", 1, 2, 2, 1),
    Sketcher.Constraint("Coincident", 2, 2, 3, 1),
    Sketcher.Constraint("Coincident", 3, 2, 0, 1),
    Sketcher.Constraint("Horizontal", 0),
    Sketcher.Constraint("Vertical", 1),
    Sketcher.Constraint("Horizontal", 2),
    Sketcher.Constraint("Vertical", 3),
    Sketcher.Constraint("DistanceX", 0, 2, 0, 1, Q("8 mm")),
    Sketcher.Constraint("DistanceY", 1, 2, 1, 1, Q("35 mm")),
    Sketcher.Constraint("DistanceX", 0, 2, -1, 1, Q("38 mm")),
    Sketcher.Constraint("DistanceY", 0, 2, -1, 1, Q("10 mm")),
])
sketch17.setExpression("Constraints[8]", "Params.sketch17_width")
sketch17.setExpression("Constraints[9]", "Params.sketch17_height")
pocket6 = doc.addObject("PartDesign::Pocket", "Pocket005")
body.addObject(pocket6)
pocket6.Profile = sketch17
pocket6.setExpression("Length", "Params.pocket6_length")
doc.recompute()

chamfer = doc.addObject("PartDesign::Chamfer", "Chamfer")
body.addObject(chamfer)
chamfer.Base = (pocket6, edges_at(pocket6, [(23.5, -30, -27.5)]))
chamfer.setExpression("Size", "Params.chamfer_size")
doc.recompute()

chamfer2 = doc.addObject("PartDesign::Chamfer", "Chamfer001")
body.addObject(chamfer2)
chamfer2.Base = (chamfer, edges_at(chamfer, [(-23.5, -30, -27.5)]))
chamfer2.setExpression("Size", "Params.chamfer2_size")
doc.recompute()

fillet = doc.addObject("PartDesign::Fillet", "Fillet")
body.addObject(fillet)
fillet.Base = (chamfer2, edges_at(chamfer2, [(30, 30, 3)]))
fillet.setExpression("Radius", "Params.fillet_radius")
doc.recompute()

fillet2 = doc.addObject("PartDesign::Fillet", "Fillet001")
body.addObject(fillet2)
fillet2.Base = (fillet, edges_at(fillet, [(-30, 30, 3)]))
fillet2.setExpression("Radius", "Params.fillet2_radius")
doc.recompute()

fillet3 = doc.addObject("PartDesign::Fillet", "Fillet002")
body.addObject(fillet3)
fillet3.Base = (fillet2, edges_at(fillet2, [(50, -34, -45)]))
fillet3.setExpression("Radius", "Params.fillet3_radius")
doc.recompute()

fillet4 = doc.addObject("PartDesign::Fillet", "Fillet003")
body.addObject(fillet4)
fillet4.Base = (fillet3, edges_at(fillet3, [(-50, -34, -45)]))
fillet4.setExpression("Radius", "Params.fillet4_radius")
doc.recompute()

fillet5 = doc.addObject("PartDesign::Fillet", "Fillet004")
body.addObject(fillet5)
fillet5.Base = (fillet4, edges_at(fillet4, [(-50, -34, 6)]))
fillet5.setExpression("Radius", "Params.fillet5_radius")
doc.recompute()

fillet6 = doc.addObject("PartDesign::Fillet", "Fillet005")
body.addObject(fillet6)
fillet6.Base = (fillet5, edges_at(fillet5, [(50, -34, 6)]))
fillet6.setExpression("Radius", "Params.fillet6_radius")

doc.recompute()
